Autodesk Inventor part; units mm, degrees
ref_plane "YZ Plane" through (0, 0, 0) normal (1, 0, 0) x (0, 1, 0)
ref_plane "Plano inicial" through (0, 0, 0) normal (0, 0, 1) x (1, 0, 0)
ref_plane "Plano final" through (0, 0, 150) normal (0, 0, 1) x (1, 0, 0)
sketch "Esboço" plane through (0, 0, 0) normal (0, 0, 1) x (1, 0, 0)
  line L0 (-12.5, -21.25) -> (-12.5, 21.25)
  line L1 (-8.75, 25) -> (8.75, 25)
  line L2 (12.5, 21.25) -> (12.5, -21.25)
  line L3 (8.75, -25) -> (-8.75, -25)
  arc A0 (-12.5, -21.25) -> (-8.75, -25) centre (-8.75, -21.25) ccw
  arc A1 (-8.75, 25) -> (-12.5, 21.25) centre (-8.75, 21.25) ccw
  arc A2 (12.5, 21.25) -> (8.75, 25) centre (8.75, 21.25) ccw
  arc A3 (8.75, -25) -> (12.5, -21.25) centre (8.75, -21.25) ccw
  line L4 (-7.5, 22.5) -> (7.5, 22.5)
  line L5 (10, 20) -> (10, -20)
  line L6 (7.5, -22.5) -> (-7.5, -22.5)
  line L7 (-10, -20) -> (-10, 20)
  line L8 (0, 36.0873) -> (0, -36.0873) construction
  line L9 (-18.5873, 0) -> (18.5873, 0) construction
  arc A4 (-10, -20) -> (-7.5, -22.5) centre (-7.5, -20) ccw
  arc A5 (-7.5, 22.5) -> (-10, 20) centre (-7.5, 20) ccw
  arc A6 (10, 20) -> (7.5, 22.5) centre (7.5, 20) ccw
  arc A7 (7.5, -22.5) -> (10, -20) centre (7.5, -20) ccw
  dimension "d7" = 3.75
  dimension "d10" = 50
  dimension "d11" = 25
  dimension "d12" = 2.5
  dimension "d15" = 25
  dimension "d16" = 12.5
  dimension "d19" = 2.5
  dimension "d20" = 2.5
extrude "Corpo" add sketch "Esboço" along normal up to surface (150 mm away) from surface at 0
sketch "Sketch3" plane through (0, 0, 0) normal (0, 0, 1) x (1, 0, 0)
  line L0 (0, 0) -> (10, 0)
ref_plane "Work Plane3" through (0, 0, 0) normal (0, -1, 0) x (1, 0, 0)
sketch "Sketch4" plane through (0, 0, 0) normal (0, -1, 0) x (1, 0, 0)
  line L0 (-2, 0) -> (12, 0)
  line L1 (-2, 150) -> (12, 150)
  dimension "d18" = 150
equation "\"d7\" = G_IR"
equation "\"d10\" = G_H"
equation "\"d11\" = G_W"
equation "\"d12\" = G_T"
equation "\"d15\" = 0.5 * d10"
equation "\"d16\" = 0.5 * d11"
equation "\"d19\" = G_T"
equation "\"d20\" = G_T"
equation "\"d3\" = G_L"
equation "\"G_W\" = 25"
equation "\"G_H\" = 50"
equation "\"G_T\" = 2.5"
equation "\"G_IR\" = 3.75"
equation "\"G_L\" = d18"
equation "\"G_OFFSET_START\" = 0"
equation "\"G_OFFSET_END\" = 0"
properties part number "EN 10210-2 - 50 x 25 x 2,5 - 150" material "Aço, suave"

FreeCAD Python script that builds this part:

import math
import FreeCAD as App
import Part
import Sketcher

V = App.Vector

doc = App.newDocument("Part")
body = doc.addObject("PartDesign::Body", "Body")

# Sketch on XY plane
sketch1 = body.newObject("Sketcher::SketchObject", "Sketch")
sketch1.AttachmentSupport = (doc.getObject("XY_Plane"), [""])
sketch1.MapMode = "FlatFace"
sketch1.addGeometry(Part.LineSegment(V(-12.5, 21.2, 0), V(-12.5, -21.2, 0)), False)
sketch1.addGeometry(Part.ArcOfCircle(Part.Circle(V(-8.8, -21.2, 0), V(0, 0, 1), 3.8), math.radians(180), math.radians(270)), False)
sketch1.addGeometry(Part.LineSegment(V(-8.8, -25, 0), V(8.8, -25, 0)), False)
sketch1.addGeometry(Part.ArcOfCircle(Part.Circle(V(8.8, -21.2, 0), V(0, 0, 1), 3.8), math.radians(-90), math.radians(0)), False)
sketch1.addGeometry(Part.LineSegment(V(12.5, -21.2, 0), V(12.5, 21.2, 0)), False)
sketch1.addGeometry(Part.ArcOfCircle(Part.Circle(V(8.8, 21.2, 0), V(0, 0, 1), 3.8), math.radians(0), math.radians(90)), False)
sketch1.addGeometry(Part.LineSegment(V(8.8, 25, 0), V(-8.8, 25, 0)), False)
sketch1.addGeometry(Part.ArcOfCircle(Part.Circle(V(-8.8, 21.2, 0), V(0, 0, 1), 3.8), math.radians(90), math.radians(180)), False)
sketch1.addGeometry(Part.ArcOfCircle(Part.Circle(V(-7.5, 20, 0), V(0, 0, 1), 2.5), math.radians(90), math.radians(180)), False)
sketch1.addGeometry(Part.LineSegment(V(-7.5, 22.5, 0), V(7.5, 22.5, 0)), False)
sketch1.addGeometry(Part.ArcOfCircle(Part.Circle(V(7.5, 20, 0), V(0, 0, 1), 2.5), math.radians(0), math.radians(90)), False)
sketch1.addGeometry(Part.LineSegment(V(10, 20, 0), V(10, -20, 0)), False)
sketch1.addGeometry(Part.ArcOfCircle(Part.Circle(V(7.5, -20, 0), V(0, 0, 1), 2.5), math.radians(-90), math.radians(0)), False)
sketch1.addGeometry(Part.LineSegment(V(7.5, -22.5, 0), V(-7.5, -22.5, 0)), False)
sketch1.addGeometry(Part.ArcOfCircle(Part.Circle(V(-7.5, -20, 0), V(0, 0, 1), 2.5), math.radians(180), math.radians(270)), False)
sketch1.addGeometry(Part.LineSegment(V(-10, -20, 0), V(-10, 20, 0)), False)
sketch1.addConstraint(Sketcher.Constraint("Tangent", 0, 2, 1, 1))
sketch1.addConstraint(Sketcher.Constraint("Tangent", 1, 2, 2, 1))
sketch1.addConstraint(Sketcher.Constraint("Tangent", 2, 2, 3, 1))
sketch1.addConstraint(Sketcher.Constraint("Tangent", 3, 2, 4, 1))
sketch1.addConstraint(Sketcher.Constraint("Tangent", 4, 2, 5, 1))
sketch1.addConstraint(Sketcher.Constraint("Tangent", 5, 2, 6, 1))
sketch1.addConstraint(Sketcher.Constraint("Tangent", 6, 2, 7, 1))
sketch1.addConstraint(Sketcher.Constraint("Tangent", 7, 2, 0, 1))
sketch1.addConstraint(Sketcher.Constraint("Tangent", 8, 1, 9, 1))
sketch1.addConstraint(Sketcher.Constraint("Tangent", 9, 2, 10, 2))
sketch1.addConstraint(Sketcher.Constraint("Tangent", 10, 1, 11, 1))
sketch1.addConstraint(Sketcher.Constraint("Tangent", 11, 2, 12, 2))
sketch1.addConstraint(Sketcher.Constraint("Tangent", 12, 1, 13, 1))
sketch1.addConstraint(Sketcher.Constraint("Tangent", 13, 2, 14, 2))
sketch1.addConstraint(Sketcher.Constraint("Tangent", 14, 1, 15, 1))
sketch1.addConstraint(Sketcher.Constraint("Tangent", 15, 2, 8, 2))
sketch1.addConstraint(Sketcher.Constraint("Vertical", 0))
sketch1.addConstraint(Sketcher.Constraint("Horizontal", 2))
sketch1.addConstraint(Sketcher.Constraint("Vertical", 4))
sketch1.addConstraint(Sketcher.Constraint("Horizontal", 6))
sketch1.addConstraint(Sketcher.Constraint("Horizontal", 9))
sketch1.addConstraint(Sketcher.Constraint("Vertical", 11))
sketch1.addConstraint(Sketcher.Constraint("Horizontal", 13))
sketch1.addConstraint(Sketcher.Constraint("Vertical", 15))
sketch1.addConstraint(Sketcher.Constraint("Equal", 1, 3))
sketch1.addConstraint(Sketcher.Constraint("Equal", 3, 5))
sketch1.addConstraint(Sketcher.Constraint("Equal", 5, 7))
sketch1.addConstraint(Sketcher.Constraint("Equal", 8, 10))
sketch1.addConstraint(Sketcher.Constraint("Equal", 10, 12))
sketch1.addConstraint(Sketcher.Constraint("Equal", 12, 14))
sketch1.addConstraint(Sketcher.Constraint("Symmetric", 1, 3, 5, 3, -1, 1))
sketch1.addConstraint(Sketcher.Constraint("Symmetric", 8, 3, 12, 3, -1, 1))
sketch1.addConstraint(Sketcher.Constraint("Radius", 8, 2.5))
sketch1.addConstraint(Sketcher.Constraint("Radius", 1, 3.75))
sketch1.addConstraint(Sketcher.Constraint("DistanceY", 1, 2, -1, 1, 25.0))
sketch1.addConstraint(Sketcher.Constraint("DistanceX", 0, 2, -1, 1, 12.5))
sketch1.addConstraint(Sketcher.Constraint("DistanceY", 8, 1, 6, 2, 2.5))
sketch1.addConstraint(Sketcher.Constraint("DistanceX", 10, 1, 4, 2, 2.5))
pad1 = body.newObject("PartDesign::Pad", "Pad")
pad1.Profile = sketch1
pad1.Length = 150

doc.recompute()
